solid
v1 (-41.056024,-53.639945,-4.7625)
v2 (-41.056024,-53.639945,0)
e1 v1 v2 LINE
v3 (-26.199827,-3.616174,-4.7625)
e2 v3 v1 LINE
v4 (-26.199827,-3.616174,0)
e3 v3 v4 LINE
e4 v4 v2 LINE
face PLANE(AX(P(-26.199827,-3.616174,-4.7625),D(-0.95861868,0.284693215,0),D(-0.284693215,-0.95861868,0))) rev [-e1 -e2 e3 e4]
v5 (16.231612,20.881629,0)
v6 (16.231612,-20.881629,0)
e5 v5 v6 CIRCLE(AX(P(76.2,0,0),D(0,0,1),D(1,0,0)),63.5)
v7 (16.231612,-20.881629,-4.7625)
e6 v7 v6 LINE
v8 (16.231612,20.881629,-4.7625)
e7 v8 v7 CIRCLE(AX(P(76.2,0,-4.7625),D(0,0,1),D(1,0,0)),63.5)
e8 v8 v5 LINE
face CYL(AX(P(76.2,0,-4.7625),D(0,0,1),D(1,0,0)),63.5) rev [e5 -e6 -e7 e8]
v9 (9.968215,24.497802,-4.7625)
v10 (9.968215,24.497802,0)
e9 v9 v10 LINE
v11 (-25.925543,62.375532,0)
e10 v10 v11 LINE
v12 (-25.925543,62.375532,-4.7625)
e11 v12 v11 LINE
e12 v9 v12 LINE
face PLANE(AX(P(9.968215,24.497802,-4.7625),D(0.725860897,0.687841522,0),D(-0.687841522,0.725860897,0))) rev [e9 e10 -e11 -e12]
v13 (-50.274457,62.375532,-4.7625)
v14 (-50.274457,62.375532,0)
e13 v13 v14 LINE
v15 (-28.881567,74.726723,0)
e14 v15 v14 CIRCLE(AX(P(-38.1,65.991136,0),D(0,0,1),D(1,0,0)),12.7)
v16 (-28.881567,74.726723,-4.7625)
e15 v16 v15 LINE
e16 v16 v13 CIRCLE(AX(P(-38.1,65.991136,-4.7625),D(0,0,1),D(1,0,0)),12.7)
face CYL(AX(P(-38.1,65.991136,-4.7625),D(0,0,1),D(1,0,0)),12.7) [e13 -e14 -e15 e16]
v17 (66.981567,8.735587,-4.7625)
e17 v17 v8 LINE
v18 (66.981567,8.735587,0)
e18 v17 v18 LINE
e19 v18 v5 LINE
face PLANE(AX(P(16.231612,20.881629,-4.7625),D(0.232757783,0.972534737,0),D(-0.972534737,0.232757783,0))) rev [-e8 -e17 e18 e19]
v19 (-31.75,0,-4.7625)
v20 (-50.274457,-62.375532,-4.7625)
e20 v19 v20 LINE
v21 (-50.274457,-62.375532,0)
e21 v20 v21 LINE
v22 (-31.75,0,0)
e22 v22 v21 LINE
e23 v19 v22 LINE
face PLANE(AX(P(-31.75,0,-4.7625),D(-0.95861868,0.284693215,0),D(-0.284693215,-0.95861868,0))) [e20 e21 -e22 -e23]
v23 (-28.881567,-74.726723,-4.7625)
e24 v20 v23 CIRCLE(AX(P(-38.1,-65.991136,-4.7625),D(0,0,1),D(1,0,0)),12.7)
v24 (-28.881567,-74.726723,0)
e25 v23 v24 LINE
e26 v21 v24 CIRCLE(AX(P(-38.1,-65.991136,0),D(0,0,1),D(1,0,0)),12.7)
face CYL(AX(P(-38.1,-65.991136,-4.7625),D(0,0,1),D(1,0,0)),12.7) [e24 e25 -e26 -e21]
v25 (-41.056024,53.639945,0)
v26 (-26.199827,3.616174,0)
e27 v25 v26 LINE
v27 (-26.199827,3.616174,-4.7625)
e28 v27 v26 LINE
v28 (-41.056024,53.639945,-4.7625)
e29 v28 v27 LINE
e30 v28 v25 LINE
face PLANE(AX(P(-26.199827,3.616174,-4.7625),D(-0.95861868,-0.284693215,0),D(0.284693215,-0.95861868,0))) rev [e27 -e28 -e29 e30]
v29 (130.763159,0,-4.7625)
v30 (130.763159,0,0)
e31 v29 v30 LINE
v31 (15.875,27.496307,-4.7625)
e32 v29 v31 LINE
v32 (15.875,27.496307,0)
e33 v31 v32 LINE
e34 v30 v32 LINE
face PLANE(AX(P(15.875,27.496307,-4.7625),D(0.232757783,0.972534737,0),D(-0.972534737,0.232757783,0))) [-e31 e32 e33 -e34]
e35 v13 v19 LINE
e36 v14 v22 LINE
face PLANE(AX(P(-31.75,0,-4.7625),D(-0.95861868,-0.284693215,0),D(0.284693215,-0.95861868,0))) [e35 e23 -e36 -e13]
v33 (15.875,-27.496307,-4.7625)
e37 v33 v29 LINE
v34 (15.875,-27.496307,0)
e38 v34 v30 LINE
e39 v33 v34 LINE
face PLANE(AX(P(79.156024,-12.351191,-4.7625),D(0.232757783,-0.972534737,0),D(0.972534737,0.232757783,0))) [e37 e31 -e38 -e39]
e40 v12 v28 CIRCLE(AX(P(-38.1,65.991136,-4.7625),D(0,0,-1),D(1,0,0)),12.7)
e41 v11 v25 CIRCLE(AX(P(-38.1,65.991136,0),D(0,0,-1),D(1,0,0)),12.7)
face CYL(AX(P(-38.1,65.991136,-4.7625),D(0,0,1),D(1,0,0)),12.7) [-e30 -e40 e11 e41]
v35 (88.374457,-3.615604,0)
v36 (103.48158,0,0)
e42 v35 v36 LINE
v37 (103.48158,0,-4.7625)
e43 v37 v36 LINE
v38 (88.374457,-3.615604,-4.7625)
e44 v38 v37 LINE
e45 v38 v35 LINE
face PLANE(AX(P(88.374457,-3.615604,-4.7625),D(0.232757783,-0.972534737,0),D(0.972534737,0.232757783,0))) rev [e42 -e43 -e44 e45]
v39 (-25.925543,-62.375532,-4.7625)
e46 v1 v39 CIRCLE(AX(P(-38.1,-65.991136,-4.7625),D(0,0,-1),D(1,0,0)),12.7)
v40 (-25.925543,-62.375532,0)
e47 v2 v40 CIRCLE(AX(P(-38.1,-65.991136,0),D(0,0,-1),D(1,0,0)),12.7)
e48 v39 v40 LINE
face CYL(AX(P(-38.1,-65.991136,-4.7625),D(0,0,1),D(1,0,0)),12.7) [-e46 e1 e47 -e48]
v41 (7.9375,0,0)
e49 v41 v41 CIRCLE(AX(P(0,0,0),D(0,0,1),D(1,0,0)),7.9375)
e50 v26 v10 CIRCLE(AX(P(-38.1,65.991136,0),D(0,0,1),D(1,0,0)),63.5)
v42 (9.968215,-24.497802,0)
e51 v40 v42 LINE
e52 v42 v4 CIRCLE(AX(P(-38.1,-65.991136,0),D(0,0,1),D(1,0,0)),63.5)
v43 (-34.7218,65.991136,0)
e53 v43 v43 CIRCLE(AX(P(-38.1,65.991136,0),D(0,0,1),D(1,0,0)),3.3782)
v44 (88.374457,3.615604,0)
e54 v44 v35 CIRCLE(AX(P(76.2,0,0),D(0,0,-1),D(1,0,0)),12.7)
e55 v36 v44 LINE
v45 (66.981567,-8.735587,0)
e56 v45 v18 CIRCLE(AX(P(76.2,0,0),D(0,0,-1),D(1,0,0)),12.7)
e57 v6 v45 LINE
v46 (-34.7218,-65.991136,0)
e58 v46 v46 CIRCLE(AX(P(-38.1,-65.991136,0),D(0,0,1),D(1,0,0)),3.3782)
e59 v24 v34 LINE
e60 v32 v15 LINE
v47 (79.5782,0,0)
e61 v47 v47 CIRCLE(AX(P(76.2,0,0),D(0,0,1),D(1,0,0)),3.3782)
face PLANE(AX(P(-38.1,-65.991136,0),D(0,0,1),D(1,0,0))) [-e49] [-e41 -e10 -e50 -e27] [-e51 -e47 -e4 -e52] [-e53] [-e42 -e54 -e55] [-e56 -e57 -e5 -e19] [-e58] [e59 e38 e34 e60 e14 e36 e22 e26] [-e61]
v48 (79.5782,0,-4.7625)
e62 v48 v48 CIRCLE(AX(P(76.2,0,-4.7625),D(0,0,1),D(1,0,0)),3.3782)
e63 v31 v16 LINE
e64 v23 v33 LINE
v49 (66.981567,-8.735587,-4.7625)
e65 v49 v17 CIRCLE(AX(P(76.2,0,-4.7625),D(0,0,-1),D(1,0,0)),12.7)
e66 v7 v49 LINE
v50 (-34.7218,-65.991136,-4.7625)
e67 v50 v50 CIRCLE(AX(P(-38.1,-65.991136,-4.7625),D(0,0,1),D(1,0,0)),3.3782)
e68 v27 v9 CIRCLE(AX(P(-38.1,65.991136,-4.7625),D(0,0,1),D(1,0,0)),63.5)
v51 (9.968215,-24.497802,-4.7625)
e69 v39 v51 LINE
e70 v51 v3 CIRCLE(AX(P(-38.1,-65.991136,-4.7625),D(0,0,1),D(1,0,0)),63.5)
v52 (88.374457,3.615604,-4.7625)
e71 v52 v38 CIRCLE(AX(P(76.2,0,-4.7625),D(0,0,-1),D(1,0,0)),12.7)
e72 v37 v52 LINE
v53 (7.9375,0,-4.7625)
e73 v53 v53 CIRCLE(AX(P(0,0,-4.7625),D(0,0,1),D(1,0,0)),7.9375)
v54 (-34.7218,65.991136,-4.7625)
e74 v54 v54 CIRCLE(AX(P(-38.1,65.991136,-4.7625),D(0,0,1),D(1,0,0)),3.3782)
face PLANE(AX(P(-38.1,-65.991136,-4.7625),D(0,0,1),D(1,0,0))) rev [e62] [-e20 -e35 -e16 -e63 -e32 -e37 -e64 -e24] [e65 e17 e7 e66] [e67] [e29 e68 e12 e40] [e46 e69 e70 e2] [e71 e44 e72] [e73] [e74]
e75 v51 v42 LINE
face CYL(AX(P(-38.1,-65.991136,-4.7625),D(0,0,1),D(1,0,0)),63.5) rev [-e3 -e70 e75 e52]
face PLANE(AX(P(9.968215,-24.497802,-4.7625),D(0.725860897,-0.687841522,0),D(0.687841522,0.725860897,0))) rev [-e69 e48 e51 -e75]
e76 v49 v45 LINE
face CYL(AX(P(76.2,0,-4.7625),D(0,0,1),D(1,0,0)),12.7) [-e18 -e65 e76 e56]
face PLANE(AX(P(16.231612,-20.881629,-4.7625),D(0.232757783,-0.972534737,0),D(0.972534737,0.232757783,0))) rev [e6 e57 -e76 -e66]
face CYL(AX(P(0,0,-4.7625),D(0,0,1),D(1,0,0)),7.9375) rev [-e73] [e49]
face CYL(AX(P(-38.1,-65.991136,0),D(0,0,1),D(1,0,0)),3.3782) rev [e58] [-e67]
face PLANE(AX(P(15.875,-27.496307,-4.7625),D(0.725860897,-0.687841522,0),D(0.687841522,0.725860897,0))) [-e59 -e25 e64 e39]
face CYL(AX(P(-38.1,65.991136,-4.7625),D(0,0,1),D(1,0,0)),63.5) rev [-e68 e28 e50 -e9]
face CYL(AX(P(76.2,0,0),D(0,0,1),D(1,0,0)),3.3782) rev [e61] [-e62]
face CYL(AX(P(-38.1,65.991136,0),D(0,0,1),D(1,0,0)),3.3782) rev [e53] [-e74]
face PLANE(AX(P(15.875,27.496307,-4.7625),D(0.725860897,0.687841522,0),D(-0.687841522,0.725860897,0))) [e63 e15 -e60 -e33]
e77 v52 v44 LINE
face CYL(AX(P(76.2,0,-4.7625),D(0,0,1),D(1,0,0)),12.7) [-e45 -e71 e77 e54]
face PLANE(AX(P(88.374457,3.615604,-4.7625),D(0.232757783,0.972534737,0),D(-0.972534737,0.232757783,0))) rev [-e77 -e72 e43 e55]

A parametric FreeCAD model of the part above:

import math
import FreeCAD as App
import Part
import Sketcher
from FreeCAD import Vector
Q = App.Units.Quantity

doc = App.newDocument("Part")
params = doc.addObject("Spreadsheet::Sheet", "Params")
for row, (alias, value) in enumerate([
    ("sketch1_radius", "0.5 in"),
    ("sketch1_radius2", "2.5 in"),
    ("sketch1_diameter", "0.625 in"),
    ("pad1_length", "0.1875 in"),
    ("sketch2_diameter", "0.266 in"),
    ("hole_diameter", "0.266 in"),
], start=1):
    params.set(f"A{row}", alias)
    params.set(f"B{row}", "=" + value)
    params.setAlias(f"B{row}", alias)

body = doc.addObject("PartDesign::Body", "Body")

sketch1 = doc.addObject("Sketcher::SketchObject", "Sketch")
body.addObject(sketch1)
sketch1.AttachmentSupport = (doc.XY_Plane, [""])
sketch1.MapMode = "FlatFace"
sketch1.addGeometry([
    Part.LineSegment(Vector(-50, 62, 0), Vector(-32, 0, 0)),
    Part.LineSegment(Vector(-32, 0, 0), Vector(-50, -62, 0)),
    Part.ArcOfCircle(Part.Circle(Vector(-38, -66, 0), Vector(0, 0, 1), 13), math.radians(163), math.radians(317)),
    Part.LineSegment(Vector(-29, -75, 0), Vector(16, -27, 0)),
    Part.LineSegment(Vector(16, -27, 0), Vector(79, -12, 0)),
    Part.LineSegment(Vector(79, -12, 0), Vector(131, 0, 0)),
    Part.LineSegment(Vector(131, 0, 0), Vector(79, 12, 0)),
    Part.LineSegment(Vector(79, 12, 0), Vector(16, 27, 0)),
    Part.LineSegment(Vector(16, 27, 0), Vector(-29, 75, 0)),
    Part.ArcOfCircle(Part.Circle(Vector(-38, 66, 0), Vector(0, 0, 1), 13), math.radians(43), math.radians(197)),
    Part.LineSegment(Vector(10, -24, 0), Vector(-26, -62, 0)),
    Part.ArcOfCircle(Part.Circle(Vector(-38, -66, 0), Vector(0, 0, 1), 13), math.radians(17), math.radians(103)),
    Part.LineSegment(Vector(-41, -54, 0), Vector(-26, -4, 0)),
    Part.ArcOfCircle(Part.Circle(Vector(-38, -66, 0), Vector(0, 0, 1), 63), math.radians(41), math.radians(79)),
    Part.LineSegment(Vector(88, 4, 0), Vector(103, 0, 0)),
    Part.LineSegment(Vector(103, 0, 0), Vector(88, -4, 0)),
    Part.ArcOfCircle(Part.Circle(Vector(76, 0, 0), Vector(0, 0, 1), 13), math.radians(-17), math.radians(17)),
    Part.LineSegment(Vector(16, 21, 0), Vector(67, 9, 0)),
    Part.ArcOfCircle(Part.Circle(Vector(76, 0, 0), Vector(0, 0, 1), 13), math.radians(137), math.radians(223)),
    Part.LineSegment(Vector(67, -9, 0), Vector(16, -21, 0)),
    Part.ArcOfCircle(Part.Circle(Vector(76, 0, 0), Vector(0, 0, 1), 64), math.radians(161), math.radians(199)),
    Part.Circle(Vector(0, 0, 0), Vector(0, 0, 1), 8),
    Part.ArcOfCircle(Part.Circle(Vector(-38, 66, 0), Vector(0, 0, 1), 63), math.radians(-79), math.radians(-41)),
    Part.LineSegment(Vector(-26, 4, 0), Vector(-41, 54, 0)),
    Part.ArcOfCircle(Part.Circle(Vector(-38, 66, 0), Vector(0, 0, 1), 13), math.radians(-103), math.radians(-17)),
    Part.LineSegment(Vector(-26, 62, 0), Vector(10, 24, 0)),
], False)
sketch1.addConstraint([
    Sketcher.Constraint("Coincident", 0, 2, 1, 1),
    Sketcher.Constraint("Tangent", 1, 2, 2, 1),
    Sketcher.Constraint("Tangent", 2, 2, 3, 1),
    Sketcher.Constraint("Coincident", 3, 2, 4, 1),
    Sketcher.Constraint("Coincident", 4, 2, 5, 1),
    Sketcher.Constraint("Coincident", 5, 2, 6, 1),
    Sketcher.Constraint("Coincident", 6, 2, 7, 1),
    Sketcher.Constraint("Coincident", 7, 2, 8, 1),
    Sketcher.Constraint("Tangent", 8, 2, 9, 1),
    Sketcher.Constraint("Tangent", 9, 2, 0, 1),
    Sketcher.Constraint("Coincident", 10, 2, 11, 1),
    Sketcher.Constraint("Coincident", 11, 2, 12, 1),
    Sketcher.Constraint("Coincident", 12, 2, 13, 2),
    Sketcher.Constraint("Coincident", 13, 1, 10, 1),
    Sketcher.Constraint("Coincident", 14, 2, 15, 1),
    Sketcher.Constraint("Coincident", 15, 2, 16, 1),
    Sketcher.Constraint("Coincident", 16, 2, 14, 1),
    Sketcher.Constraint("Coincident", 17, 2, 18, 1),
    Sketcher.Constraint("Coincident", 18, 2, 19, 1),
    Sketcher.Constraint("Coincident", 19, 2, 20, 2),
    Sketcher.Constraint("Coincident", 20, 1, 17, 1),
    Sketcher.Constraint("Coincident", 22, 1, 23, 1),
    Sketcher.Constraint("Coincident", 23, 2, 24, 1),
    Sketcher.Constraint("Coincident", 24, 2, 25, 1),
    Sketcher.Constraint("Coincident", 25, 2, 22, 2),
    Sketcher.Constraint("Coincident", 21, 3, -1, 1),
    Sketcher.Constraint("Coincident", 11, 3, 2, 3),
    Sketcher.Constraint("Coincident", 13, 3, 2, 3),
    Sketcher.Constraint("Coincident", 18, 3, 16, 3),
    Sketcher.Constraint("Coincident", 20, 3, 16, 3),
    Sketcher.Constraint("Coincident", 22, 3, 9, 3),
    Sketcher.Constraint("Coincident", 24, 3, 9, 3),
    Sketcher.Constraint("Equal", 2, 9),
    Sketcher.Constraint("Equal", 9, 11),
    Sketcher.Constraint("Equal", 11, 16),
    Sketcher.Constraint("Equal", 16, 18),
    Sketcher.Constraint("Equal", 13, 20),
    Sketcher.Constraint("Equal", 20, 22),
    Sketcher.Constraint("Equal", 18, 24),
    Sketcher.Constraint("Symmetric", 2, 3, 9, 3, -1),
    Sketcher.Constraint("Symmetric", 3, 2, 7, 2, -1),
    Sketcher.Constraint("Symmetric", 15, 2, 16, 2, -1),
    Sketcher.Constraint("PointOnObject", 0, 2, -1),
    Sketcher.Constraint("PointOnObject", 5, 2, -1),
    Sketcher.Constraint("PointOnObject", 14, 2, -1),
    Sketcher.Constraint("Parallel", 4, 5),
    Sketcher.Constraint("Parallel", 6, 7),
    Sketcher.Constraint("Parallel", 3, 10),
    Sketcher.Constraint("Parallel", 1, 12),
    Sketcher.Constraint("Parallel", 7, 14),
    Sketcher.Constraint("Parallel", 14, 17),
    Sketcher.Constraint("Parallel", 15, 19),
    Sketcher.Constraint("Parallel", 0, 23),
    Sketcher.Constraint("Parallel", 8, 25),
    Sketcher.Constraint("Horizontal", 1, 2, 10, 2),
    Sketcher.Constraint("Horizontal", 9, 2, 24, 2),
    Sketcher.Constraint("Vertical", 17, 2, 18, 2),
    Sketcher.Constraint("Vertical", 12, 2, 22, 1),
    Sketcher.Constraint("Equal", 1, 3),
    Sketcher.Constraint("Equal", 3, 4),
    Sketcher.Constraint("Equal", 10, 12),
    Sketcher.Constraint("Equal", 12, 17),
    Sketcher.Constraint("Radius", 2, Q("0.5 in")),
    Sketcher.Constraint("Radius", 13, Q("2.5 in")),
    Sketcher.Constraint("Diameter", 21, Q("0.625 in")),
    Sketcher.Constraint("DistanceX", -1, 1, 16, 3, Q("3 in")),
    Sketcher.Constraint("DistanceX", 2, 3, -1, 1, Q("1.5 in")),
    Sketcher.Constraint("DistanceX", 0, 2, -1, 1, Q("1.25 in")),
    Sketcher.Constraint("DistanceX", -1, 1, 3, 2, Q("0.625 in")),
    Sketcher.Constraint("Distance", 7, 64.816398),
    Sketcher.Constraint("DistanceX", -1, 1, 6, 2, 78.911199),
    Sketcher.Constraint("DistanceY", 17, 2, 6, 2, 3.674198),
    Sketcher.Constraint("Distance", 14, 15.533761),
])
sketch1.setExpression("Constraints[62]", "Params.sketch1_radius")
sketch1.setExpression("Constraints[63]", "Params.sketch1_radius2")
sketch1.setExpression("Constraints[64]", "Params.sketch1_diameter")
pad1 = doc.addObject("PartDesign::Pad", "Pad")
body.addObject(pad1)
pad1.Profile = sketch1
pad1.setExpression("Length", "Params.pad1_length")
pad1.Reversed = True

sketch2 = doc.addObject("Sketcher::SketchObject", "Sketch001")
body.addObject(sketch2)
sketch2.AttachmentSupport = (doc.XY_Plane, [""])
sketch2.MapMode = "FlatFace"
sketch2.addGeometry([
    Part.Circle(Vector(76.2, 0, 0), Vector(0, 0, 1), 3.4),
    Part.Circle(Vector(-38.1, 66, 0), Vector(0, 0, 1), 3.4),
    Part.Circle(Vector(-38.1, -66, 0), Vector(0, 0, 1), 3.4),
], False)
sketch2.addConstraint([
    Sketcher.Constraint("Equal", 0, 1),
    Sketcher.Constraint("Equal", 1, 2),
    Sketcher.Constraint("Symmetric", 1, 3, 2, 3, -1),
    Sketcher.Constraint("PointOnObject", 0, 3, -1),
    Sketcher.Constraint("Diameter", 0, Q("0.266 in")),
    Sketcher.Constraint("DistanceX", -1, 1, 0, 3, Q("3 in")),
    Sketcher.Constraint("DistanceX", 1, 3, -1, 1, Q("1.5 in")),
    Sketcher.Constraint("DistanceY", 2, 3, 1, 3, 131.982272),
])
sketch2.setExpression("Constraints[4]", "Params.sketch2_diameter")
doc.recompute()
hole = doc.addObject("PartDesign::Hole", "Hole")
body.addObject(hole)
hole.Profile = sketch2
hole.ThreadType = "None"
hole.setExpression("Diameter", "Params.hole_diameter")
hole.DepthType = "ThroughAll"

doc.recompute()
